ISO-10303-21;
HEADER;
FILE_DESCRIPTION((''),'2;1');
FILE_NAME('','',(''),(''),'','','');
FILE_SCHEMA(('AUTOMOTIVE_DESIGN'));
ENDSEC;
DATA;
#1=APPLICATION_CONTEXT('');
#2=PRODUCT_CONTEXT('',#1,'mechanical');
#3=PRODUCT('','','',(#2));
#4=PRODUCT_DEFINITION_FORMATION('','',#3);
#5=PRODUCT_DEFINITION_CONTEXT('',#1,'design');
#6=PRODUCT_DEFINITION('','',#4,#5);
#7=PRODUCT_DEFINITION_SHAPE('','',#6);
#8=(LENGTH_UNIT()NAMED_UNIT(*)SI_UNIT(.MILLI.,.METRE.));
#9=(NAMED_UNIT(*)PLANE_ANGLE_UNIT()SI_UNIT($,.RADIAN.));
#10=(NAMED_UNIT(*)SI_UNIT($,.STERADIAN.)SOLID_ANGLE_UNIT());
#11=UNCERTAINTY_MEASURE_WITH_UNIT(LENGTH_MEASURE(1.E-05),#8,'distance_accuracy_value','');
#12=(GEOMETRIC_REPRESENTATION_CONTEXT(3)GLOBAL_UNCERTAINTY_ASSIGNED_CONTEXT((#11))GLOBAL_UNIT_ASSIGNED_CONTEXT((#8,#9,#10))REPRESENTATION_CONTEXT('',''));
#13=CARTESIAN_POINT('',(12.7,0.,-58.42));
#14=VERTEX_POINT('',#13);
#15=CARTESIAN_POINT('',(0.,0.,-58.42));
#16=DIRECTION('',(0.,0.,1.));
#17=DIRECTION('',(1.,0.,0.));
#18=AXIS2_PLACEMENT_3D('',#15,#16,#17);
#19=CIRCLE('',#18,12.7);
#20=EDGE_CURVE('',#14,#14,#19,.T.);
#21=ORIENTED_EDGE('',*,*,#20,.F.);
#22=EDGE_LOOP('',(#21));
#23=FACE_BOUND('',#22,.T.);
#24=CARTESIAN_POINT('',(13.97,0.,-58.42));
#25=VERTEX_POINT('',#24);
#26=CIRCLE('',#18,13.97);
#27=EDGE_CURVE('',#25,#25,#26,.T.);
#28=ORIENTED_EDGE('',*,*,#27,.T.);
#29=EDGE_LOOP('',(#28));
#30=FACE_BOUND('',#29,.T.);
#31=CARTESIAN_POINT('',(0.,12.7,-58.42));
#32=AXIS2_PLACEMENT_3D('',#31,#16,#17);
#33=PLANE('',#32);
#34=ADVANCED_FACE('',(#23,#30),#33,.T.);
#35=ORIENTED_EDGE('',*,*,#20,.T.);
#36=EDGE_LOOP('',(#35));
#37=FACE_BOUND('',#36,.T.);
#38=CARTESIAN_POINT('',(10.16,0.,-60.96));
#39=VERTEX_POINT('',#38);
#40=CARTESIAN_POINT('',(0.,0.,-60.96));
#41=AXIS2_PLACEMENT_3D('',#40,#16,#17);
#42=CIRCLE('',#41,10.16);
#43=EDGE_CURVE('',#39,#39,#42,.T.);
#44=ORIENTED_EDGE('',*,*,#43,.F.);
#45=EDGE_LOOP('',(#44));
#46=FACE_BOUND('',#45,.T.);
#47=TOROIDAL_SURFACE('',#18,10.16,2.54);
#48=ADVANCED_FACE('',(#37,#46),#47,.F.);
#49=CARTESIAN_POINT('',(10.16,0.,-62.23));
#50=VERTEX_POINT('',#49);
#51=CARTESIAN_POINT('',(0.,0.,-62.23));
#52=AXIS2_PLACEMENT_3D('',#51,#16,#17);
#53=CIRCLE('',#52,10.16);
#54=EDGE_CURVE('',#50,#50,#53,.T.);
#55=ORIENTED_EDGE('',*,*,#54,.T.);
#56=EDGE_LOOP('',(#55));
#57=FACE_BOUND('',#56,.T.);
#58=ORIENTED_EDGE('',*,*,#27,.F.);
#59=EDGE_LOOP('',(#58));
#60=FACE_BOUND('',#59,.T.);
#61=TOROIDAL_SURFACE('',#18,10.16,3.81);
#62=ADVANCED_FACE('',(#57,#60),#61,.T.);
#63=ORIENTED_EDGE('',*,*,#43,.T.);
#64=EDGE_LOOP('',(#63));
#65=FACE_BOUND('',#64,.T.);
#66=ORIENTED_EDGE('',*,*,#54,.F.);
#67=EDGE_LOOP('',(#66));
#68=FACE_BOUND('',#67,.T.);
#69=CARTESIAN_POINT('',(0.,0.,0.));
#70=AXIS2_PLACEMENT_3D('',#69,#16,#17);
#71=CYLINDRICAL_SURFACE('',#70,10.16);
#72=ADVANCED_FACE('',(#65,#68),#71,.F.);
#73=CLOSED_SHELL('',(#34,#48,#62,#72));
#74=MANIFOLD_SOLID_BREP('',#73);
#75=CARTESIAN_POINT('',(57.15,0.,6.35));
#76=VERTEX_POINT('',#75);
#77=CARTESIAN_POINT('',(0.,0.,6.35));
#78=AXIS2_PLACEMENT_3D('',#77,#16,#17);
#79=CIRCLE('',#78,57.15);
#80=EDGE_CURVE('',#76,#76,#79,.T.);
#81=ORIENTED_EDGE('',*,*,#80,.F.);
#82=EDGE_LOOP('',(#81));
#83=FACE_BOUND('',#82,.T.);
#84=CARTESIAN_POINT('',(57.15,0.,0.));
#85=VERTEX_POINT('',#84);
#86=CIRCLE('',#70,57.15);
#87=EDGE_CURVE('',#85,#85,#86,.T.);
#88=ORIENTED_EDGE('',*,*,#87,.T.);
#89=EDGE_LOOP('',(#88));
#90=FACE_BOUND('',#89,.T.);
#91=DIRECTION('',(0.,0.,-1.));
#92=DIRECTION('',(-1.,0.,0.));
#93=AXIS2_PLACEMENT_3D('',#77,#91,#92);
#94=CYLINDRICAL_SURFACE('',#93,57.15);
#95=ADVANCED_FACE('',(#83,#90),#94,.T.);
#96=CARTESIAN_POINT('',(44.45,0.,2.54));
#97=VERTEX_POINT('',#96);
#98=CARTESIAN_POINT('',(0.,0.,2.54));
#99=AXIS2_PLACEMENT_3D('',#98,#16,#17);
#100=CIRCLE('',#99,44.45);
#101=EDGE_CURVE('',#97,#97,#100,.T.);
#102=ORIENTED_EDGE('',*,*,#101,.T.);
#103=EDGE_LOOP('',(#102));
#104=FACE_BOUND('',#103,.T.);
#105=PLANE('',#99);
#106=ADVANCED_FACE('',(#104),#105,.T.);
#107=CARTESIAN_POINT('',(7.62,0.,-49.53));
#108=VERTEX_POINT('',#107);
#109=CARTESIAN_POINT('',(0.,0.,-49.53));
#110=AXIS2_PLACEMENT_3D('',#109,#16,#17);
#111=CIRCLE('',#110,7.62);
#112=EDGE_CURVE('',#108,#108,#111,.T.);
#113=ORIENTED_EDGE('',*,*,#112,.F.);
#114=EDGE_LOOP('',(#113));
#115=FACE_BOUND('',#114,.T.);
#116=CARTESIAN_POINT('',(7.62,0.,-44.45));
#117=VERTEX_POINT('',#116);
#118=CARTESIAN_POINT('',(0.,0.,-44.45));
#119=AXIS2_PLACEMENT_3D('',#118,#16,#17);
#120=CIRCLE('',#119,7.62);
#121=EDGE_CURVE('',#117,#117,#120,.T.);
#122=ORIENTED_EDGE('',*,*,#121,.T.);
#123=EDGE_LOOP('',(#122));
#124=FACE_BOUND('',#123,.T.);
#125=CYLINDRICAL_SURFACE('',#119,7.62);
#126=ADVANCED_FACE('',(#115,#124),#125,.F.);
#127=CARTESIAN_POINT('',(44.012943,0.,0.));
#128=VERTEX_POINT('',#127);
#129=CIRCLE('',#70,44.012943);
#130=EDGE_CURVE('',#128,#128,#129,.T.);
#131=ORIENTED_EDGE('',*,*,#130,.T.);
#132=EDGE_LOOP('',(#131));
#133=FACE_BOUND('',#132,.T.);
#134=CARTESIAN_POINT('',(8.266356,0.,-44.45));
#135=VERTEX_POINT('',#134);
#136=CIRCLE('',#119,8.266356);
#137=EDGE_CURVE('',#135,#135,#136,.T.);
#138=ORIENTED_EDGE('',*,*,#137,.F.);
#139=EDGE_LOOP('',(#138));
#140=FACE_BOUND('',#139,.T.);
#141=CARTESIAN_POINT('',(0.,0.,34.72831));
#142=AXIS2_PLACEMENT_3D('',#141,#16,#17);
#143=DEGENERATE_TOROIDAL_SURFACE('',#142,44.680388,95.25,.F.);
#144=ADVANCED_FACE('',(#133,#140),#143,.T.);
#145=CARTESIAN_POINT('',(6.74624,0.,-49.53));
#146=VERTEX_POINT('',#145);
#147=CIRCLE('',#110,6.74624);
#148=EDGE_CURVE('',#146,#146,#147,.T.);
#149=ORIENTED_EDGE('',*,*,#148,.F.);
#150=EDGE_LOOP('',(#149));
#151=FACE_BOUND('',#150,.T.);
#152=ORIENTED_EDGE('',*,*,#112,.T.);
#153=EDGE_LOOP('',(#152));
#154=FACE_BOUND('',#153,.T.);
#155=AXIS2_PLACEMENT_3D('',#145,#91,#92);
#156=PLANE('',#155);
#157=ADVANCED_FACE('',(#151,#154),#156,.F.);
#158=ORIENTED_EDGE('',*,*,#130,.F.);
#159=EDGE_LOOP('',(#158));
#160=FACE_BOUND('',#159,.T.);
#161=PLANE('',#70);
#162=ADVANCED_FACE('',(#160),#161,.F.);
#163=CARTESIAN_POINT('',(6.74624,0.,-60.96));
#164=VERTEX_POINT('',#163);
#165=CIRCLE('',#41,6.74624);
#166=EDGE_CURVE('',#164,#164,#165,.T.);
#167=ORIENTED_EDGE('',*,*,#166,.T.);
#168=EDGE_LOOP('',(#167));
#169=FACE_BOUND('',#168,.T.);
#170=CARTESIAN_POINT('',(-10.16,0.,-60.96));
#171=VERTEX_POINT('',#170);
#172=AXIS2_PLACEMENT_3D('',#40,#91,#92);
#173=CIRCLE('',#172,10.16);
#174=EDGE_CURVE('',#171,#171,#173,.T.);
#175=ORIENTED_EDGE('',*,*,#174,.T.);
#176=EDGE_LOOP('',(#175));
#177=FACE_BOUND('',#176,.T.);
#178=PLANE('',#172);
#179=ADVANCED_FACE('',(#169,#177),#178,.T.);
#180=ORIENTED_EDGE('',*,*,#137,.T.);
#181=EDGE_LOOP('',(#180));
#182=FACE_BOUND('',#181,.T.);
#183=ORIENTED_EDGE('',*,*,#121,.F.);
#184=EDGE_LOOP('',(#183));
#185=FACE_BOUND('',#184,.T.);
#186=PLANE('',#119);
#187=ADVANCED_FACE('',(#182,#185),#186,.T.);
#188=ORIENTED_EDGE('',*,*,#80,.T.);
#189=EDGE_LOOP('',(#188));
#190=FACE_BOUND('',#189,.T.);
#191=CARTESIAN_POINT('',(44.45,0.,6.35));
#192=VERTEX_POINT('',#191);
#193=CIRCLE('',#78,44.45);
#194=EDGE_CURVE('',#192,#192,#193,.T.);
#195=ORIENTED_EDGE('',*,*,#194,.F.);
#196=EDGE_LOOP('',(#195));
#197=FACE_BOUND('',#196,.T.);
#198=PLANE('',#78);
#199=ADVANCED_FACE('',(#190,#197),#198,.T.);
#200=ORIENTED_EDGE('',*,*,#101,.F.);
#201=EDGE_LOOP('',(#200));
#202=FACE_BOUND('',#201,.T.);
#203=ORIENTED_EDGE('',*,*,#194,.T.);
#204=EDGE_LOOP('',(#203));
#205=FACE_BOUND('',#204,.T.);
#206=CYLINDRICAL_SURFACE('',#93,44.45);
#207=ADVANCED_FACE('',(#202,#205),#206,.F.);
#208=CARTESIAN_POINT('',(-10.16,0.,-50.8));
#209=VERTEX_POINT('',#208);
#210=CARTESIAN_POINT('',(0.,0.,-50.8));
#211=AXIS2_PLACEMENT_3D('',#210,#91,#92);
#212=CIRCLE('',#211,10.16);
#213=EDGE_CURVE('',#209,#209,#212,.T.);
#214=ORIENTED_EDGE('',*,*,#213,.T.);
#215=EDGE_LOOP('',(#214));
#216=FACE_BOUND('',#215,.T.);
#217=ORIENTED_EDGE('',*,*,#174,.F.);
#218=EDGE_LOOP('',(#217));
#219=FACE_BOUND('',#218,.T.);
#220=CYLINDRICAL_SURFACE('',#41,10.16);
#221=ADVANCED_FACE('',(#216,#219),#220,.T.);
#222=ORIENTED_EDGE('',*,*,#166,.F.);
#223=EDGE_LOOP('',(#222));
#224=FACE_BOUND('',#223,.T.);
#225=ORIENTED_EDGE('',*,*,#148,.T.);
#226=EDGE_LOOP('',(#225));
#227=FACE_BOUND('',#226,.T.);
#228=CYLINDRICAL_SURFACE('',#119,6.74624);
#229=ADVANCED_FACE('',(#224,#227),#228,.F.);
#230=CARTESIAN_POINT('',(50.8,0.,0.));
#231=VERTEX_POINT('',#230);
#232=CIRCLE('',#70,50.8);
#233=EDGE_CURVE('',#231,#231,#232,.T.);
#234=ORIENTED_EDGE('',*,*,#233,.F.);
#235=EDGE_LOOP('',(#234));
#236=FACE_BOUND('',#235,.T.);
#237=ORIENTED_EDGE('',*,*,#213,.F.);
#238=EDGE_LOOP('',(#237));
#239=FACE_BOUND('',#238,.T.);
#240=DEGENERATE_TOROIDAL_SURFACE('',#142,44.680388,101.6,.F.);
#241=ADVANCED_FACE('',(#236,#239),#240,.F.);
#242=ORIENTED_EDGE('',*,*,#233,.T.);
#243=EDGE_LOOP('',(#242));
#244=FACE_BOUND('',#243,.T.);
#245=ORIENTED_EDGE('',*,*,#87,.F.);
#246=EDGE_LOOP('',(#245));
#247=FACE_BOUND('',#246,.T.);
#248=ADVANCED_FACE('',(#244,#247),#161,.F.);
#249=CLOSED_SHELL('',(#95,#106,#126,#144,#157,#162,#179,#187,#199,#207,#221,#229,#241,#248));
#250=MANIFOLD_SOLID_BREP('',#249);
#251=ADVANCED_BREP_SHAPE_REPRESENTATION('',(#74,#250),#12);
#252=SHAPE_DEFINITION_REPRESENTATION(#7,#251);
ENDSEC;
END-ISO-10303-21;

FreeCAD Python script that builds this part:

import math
import FreeCAD as App
import Part
import Sketcher

V = App.Vector
Q = App.Units.Quantity


def faces_at(feature, points):
    """Names of the faces that lie closest to the given points."""
    faces = feature.Shape.Faces
    near = lambda p: min(range(len(faces)), key=lambda i: faces[i].distToShape(Part.Vertex(*p))[0])
    return sorted({f"Face{near(p) + 1}" for p in points})

doc = App.newDocument("Part")
body = doc.addObject("PartDesign::Body", "Body")
body.AllowCompound = True

sketch1 = body.newObject("Sketcher::SketchObject", "Sketch")
sketch1.AttachmentSupport = (doc.getObject("YZ_Plane"), [""])
sketch1.MapMode = "FlatFace"
sketch1.addGeometry([
    Part.LineSegment(V(51, 0, 0), V(0, 0, 0)),
    Part.LineSegment(V(0, 0, 0), V(0, -51, 0)),
    Part.LineSegment(V(0, -51, 0), V(10, -51, 0)),
    Part.ArcOfCircle(Part.Circle(V(-45, 35, 0), V(0, 0, 1), 102), math.radians(-57), math.radians(-20)),
], False)
sketch1.addConstraint([
    Sketcher.Constraint("Coincident", 0, 2, 1, 1),
    Sketcher.Constraint("Coincident", 1, 2, 2, 1),
    Sketcher.Constraint("Coincident", 2, 2, 3, 1),
    Sketcher.Constraint("Coincident", 3, 2, 0, 1),
    Sketcher.Constraint("Horizontal", 0),
    Sketcher.Constraint("Vertical", 1),
    Sketcher.Constraint("Horizontal", 2),
    Sketcher.Constraint("Coincident", 0, 2, -1, 1),
    Sketcher.Constraint("Equal", 0, 1),
    Sketcher.Constraint("Radius", 3, Q("4 in")),
    Sketcher.Constraint("DistanceX", 0, 2, 0, 1, Q("2 in")),
    Sketcher.Constraint("DistanceX", 2, 1, 2, 2, Q("0.4 in")),
])
revolution = body.newObject("PartDesign::Revolution", "Revolution")
revolution.Profile = sketch1
revolution.ReferenceAxis = (sketch1, ["V_Axis"])
revolution.Angle = 360
doc.recompute()

thickness = body.newObject("PartDesign::Thickness", "Thickness")
thickness.Base = (revolution, faces_at(revolution, [(0, 0, 0)]))
thickness.Value = Q("0.25 in")
thickness.Reversed = True
thickness.Join = "Intersection"

sketch2 = body.newObject("Sketcher::SketchObject", "Sketch001")
sketch2.AttachmentSupport = (doc.getObject("XY_Plane"), [""])
sketch2.MapMode = "FlatFace"
sketch2.AttachmentOffset = App.Placement(V(0, 0, -2 * 25.4), App.Rotation())
sketch2.addGeometry(Part.Circle(V(0, 0, 0), V(0, 0, 1), 10), False)
sketch2.addConstraint([
    Sketcher.Constraint("Coincident", 0, 3, -1, 1),
    Sketcher.Constraint("Diameter", 0, Q("0.8 in")),
])
pad1 = body.newObject("PartDesign::Pad", "Pad")
pad1.Profile = sketch2
pad1.Length = Q("0.4 in")
pad1.Reversed = True

sketch3 = body.newObject("Sketcher::SketchObject", "Sketch002")
sketch3.AttachmentSupport = (doc.getObject("XY_Plane"), [""])
sketch3.MapMode = "FlatFace"
sketch3.AttachmentOffset = App.Placement(V(0, 0, -1.75 * 25.4), App.Rotation())
sketch3.addGeometry(Part.Circle(V(0, 0, 0), V(0, 0, 1), 7), False)
sketch3.addConstraint([
    Sketcher.Constraint("Coincident", 0, 3, -1, 1),
    Sketcher.Constraint("Diameter", 0, Q("0.5312 in")),
])
doc.recompute()
hole = body.newObject("PartDesign::Hole", "Hole")
hole.Profile = sketch3
hole.ThreadType = "None"
hole.Diameter = Q("0.5312 in")
hole.DepthType = "ThroughAll"
hole.HoleCutType = "Counterbore"
hole.HoleCutDiameter = Q("0.6 in")
hole.HoleCutDepth = Q("0.2 in")

sketch4 = body.newObject("Sketcher::SketchObject", "Sketch003")
sketch4.AttachmentSupport = (doc.getObject("YZ_Plane"), [""])
sketch4.MapMode = "FlatFace"
sketch4.addGeometry([
    Part.ArcOfCircle(Part.Circle(V(10.2, -58.4, 0), V(0, 0, 1), 2.5), math.radians(-90), math.radians(0)),
    Part.LineSegment(V(10.2, -61, 0), V(10.2, -62.2, 0)),
    Part.ArcOfCircle(Part.Circle(V(10.2, -58.4, 0), V(0, 0, 1), 3.8), math.radians(-90), math.radians(0)),
    Part.LineSegment(V(14, -58.4, 0), V(12.7, -58.4, 0)),
], False)
sketch4.addConstraint([
    Sketcher.Constraint("Coincident", 0, 1, 1, 1),
    Sketcher.Constraint("Coincident", 1, 2, 2, 1),
    Sketcher.Constraint("Coincident", 2, 2, 3, 1),
    Sketcher.Constraint("Coincident", 3, 2, 0, 2),
    Sketcher.Constraint("Vertical", 1),
    Sketcher.Constraint("Horizontal", 3),
    Sketcher.Constraint("Coincident", 2, 3, 0, 3),
    Sketcher.Constraint("Horizontal", 0, 3, 2, 2),
    Sketcher.Constraint("Vertical", 2, 3, 0, 1),
    Sketcher.Constraint("Radius", 0, Q("0.1 in")),
    Sketcher.Constraint("Radius", 2, Q("0.15 in")),
    Sketcher.Constraint("DistanceX", -1, 1, 0, 3, Q("0.4 in")),
    Sketcher.Constraint("DistanceY", 0, 3, -1, 1, Q("2.3 in")),
])
revolution2 = body.newObject("PartDesign::Revolution", "Revolution001")
revolution2.Profile = sketch4
revolution2.ReferenceAxis = (sketch4, ["V_Axis"])
revolution2.Angle = 360

sketch5 = body.newObject("Sketcher::SketchObject", "Sketch004")
sketch5.AttachmentSupport = (doc.getObject("XY_Plane"), [""])
sketch5.MapMode = "FlatFace"
sketch5.addGeometry([
    Part.Circle(V(0, 0, 0), V(0, 0, 1), 57),
    Part.Circle(V(0, 0, 0), V(0, 0, 1), 44),
], False)
sketch5.addConstraint([
    Sketcher.Constraint("Coincident", 0, 3, -1, 1),
    Sketcher.Constraint("Coincident", 1, 3, -1, 1),
    Sketcher.Constraint("Diameter", 0, Q("4.5 in")),
    Sketcher.Constraint("Diameter", 1, Q("3.5 in")),
])
pad2 = body.newObject("PartDesign::Pad", "Pad001")
pad2.Profile = sketch5
pad2.Length = Q("0.25 in")

sketch6 = body.newObject("Sketcher::SketchObject", "Sketch005")
sketch6.AttachmentSupport = (doc.getObject("XY_Plane"), [""])
sketch6.MapMode = "FlatFace"
sketch6.addGeometry(Part.Circle(V(0, 0, 0), V(0, 0, 1), 44), False)
sketch6.addConstraint([
    Sketcher.Constraint("Coincident", 0, 3, -1, 1),
    Sketcher.Constraint("Diameter", 0, Q("3.5 in")),
])
pad3 = body.newObject("PartDesign::Pad", "Pad002")
pad3.Profile = sketch6
pad3.Length = Q("0.1 in")

doc.recompute()
